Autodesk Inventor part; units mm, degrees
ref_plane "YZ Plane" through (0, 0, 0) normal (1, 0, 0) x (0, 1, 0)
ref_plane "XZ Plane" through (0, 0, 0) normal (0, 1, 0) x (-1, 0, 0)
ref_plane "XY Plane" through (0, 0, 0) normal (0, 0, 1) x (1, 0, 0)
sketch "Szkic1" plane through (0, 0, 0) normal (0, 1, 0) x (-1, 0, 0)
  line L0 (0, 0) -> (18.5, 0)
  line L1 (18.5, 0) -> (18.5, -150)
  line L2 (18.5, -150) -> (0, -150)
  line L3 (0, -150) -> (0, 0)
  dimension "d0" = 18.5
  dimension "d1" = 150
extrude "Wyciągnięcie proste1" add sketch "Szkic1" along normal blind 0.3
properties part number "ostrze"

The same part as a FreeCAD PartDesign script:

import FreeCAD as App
import Part
import Sketcher
from FreeCAD import Vector
Q = App.Units.Quantity

doc = App.newDocument("Part")
body = doc.addObject("PartDesign::Body", "Body")

# Sketch on XZ plane
sketch1 = doc.addObject("Sketcher::SketchObject", "Sketch")
body.addObject(sketch1)
sketch1.AttachmentSupport = (doc.XZ_Plane, [""])
sketch1.MapMode = "FlatFace"
sketch1.addGeometry(Part.LineSegment(Vector(-18, 0, 0), Vector(0, 0, 0)), False)
sketch1.addGeometry(Part.LineSegment(Vector(0, 0, 0), Vector(0, -150, 0)), False)
sketch1.addGeometry(Part.LineSegment(Vector(0, -150, 0), Vector(-18, -150, 0)), False)
sketch1.addGeometry(Part.LineSegment(Vector(-18, -150, 0), Vector(-18, 0, 0)), False)
sketch1.addConstraint(Sketcher.Constraint("Coincident", 0, 2, 1, 1))
sketch1.addConstraint(Sketcher.Constraint("Coincident", 1, 2, 2, 1))
sketch1.addConstraint(Sketcher.Constraint("Coincident", 2, 2, 3, 1))
sketch1.addConstraint(Sketcher.Constraint("Coincident", 3, 2, 0, 1))
sketch1.addConstraint(Sketcher.Constraint("Horizontal", 0))
sketch1.addConstraint(Sketcher.Constraint("Vertical", 1))
sketch1.addConstraint(Sketcher.Constraint("Horizontal", 2))
sketch1.addConstraint(Sketcher.Constraint("Vertical", 3))
sketch1.addConstraint(Sketcher.Constraint("Coincident", 0, 2, -1, 1))
sketch1.addConstraint(Sketcher.Constraint("DistanceY", 1, 2, 1, 1, Q("150 mm")))
sketch1.addConstraint(Sketcher.Constraint("DistanceX", 0, 1, 0, 2, Q("18.5 mm")))
pad1 = doc.addObject("PartDesign::Pad", "Pad")
body.addObject(pad1)
pad1.Profile = sketch1
pad1.Length = 0.3
pad1.Reversed = True

doc.recompute()
